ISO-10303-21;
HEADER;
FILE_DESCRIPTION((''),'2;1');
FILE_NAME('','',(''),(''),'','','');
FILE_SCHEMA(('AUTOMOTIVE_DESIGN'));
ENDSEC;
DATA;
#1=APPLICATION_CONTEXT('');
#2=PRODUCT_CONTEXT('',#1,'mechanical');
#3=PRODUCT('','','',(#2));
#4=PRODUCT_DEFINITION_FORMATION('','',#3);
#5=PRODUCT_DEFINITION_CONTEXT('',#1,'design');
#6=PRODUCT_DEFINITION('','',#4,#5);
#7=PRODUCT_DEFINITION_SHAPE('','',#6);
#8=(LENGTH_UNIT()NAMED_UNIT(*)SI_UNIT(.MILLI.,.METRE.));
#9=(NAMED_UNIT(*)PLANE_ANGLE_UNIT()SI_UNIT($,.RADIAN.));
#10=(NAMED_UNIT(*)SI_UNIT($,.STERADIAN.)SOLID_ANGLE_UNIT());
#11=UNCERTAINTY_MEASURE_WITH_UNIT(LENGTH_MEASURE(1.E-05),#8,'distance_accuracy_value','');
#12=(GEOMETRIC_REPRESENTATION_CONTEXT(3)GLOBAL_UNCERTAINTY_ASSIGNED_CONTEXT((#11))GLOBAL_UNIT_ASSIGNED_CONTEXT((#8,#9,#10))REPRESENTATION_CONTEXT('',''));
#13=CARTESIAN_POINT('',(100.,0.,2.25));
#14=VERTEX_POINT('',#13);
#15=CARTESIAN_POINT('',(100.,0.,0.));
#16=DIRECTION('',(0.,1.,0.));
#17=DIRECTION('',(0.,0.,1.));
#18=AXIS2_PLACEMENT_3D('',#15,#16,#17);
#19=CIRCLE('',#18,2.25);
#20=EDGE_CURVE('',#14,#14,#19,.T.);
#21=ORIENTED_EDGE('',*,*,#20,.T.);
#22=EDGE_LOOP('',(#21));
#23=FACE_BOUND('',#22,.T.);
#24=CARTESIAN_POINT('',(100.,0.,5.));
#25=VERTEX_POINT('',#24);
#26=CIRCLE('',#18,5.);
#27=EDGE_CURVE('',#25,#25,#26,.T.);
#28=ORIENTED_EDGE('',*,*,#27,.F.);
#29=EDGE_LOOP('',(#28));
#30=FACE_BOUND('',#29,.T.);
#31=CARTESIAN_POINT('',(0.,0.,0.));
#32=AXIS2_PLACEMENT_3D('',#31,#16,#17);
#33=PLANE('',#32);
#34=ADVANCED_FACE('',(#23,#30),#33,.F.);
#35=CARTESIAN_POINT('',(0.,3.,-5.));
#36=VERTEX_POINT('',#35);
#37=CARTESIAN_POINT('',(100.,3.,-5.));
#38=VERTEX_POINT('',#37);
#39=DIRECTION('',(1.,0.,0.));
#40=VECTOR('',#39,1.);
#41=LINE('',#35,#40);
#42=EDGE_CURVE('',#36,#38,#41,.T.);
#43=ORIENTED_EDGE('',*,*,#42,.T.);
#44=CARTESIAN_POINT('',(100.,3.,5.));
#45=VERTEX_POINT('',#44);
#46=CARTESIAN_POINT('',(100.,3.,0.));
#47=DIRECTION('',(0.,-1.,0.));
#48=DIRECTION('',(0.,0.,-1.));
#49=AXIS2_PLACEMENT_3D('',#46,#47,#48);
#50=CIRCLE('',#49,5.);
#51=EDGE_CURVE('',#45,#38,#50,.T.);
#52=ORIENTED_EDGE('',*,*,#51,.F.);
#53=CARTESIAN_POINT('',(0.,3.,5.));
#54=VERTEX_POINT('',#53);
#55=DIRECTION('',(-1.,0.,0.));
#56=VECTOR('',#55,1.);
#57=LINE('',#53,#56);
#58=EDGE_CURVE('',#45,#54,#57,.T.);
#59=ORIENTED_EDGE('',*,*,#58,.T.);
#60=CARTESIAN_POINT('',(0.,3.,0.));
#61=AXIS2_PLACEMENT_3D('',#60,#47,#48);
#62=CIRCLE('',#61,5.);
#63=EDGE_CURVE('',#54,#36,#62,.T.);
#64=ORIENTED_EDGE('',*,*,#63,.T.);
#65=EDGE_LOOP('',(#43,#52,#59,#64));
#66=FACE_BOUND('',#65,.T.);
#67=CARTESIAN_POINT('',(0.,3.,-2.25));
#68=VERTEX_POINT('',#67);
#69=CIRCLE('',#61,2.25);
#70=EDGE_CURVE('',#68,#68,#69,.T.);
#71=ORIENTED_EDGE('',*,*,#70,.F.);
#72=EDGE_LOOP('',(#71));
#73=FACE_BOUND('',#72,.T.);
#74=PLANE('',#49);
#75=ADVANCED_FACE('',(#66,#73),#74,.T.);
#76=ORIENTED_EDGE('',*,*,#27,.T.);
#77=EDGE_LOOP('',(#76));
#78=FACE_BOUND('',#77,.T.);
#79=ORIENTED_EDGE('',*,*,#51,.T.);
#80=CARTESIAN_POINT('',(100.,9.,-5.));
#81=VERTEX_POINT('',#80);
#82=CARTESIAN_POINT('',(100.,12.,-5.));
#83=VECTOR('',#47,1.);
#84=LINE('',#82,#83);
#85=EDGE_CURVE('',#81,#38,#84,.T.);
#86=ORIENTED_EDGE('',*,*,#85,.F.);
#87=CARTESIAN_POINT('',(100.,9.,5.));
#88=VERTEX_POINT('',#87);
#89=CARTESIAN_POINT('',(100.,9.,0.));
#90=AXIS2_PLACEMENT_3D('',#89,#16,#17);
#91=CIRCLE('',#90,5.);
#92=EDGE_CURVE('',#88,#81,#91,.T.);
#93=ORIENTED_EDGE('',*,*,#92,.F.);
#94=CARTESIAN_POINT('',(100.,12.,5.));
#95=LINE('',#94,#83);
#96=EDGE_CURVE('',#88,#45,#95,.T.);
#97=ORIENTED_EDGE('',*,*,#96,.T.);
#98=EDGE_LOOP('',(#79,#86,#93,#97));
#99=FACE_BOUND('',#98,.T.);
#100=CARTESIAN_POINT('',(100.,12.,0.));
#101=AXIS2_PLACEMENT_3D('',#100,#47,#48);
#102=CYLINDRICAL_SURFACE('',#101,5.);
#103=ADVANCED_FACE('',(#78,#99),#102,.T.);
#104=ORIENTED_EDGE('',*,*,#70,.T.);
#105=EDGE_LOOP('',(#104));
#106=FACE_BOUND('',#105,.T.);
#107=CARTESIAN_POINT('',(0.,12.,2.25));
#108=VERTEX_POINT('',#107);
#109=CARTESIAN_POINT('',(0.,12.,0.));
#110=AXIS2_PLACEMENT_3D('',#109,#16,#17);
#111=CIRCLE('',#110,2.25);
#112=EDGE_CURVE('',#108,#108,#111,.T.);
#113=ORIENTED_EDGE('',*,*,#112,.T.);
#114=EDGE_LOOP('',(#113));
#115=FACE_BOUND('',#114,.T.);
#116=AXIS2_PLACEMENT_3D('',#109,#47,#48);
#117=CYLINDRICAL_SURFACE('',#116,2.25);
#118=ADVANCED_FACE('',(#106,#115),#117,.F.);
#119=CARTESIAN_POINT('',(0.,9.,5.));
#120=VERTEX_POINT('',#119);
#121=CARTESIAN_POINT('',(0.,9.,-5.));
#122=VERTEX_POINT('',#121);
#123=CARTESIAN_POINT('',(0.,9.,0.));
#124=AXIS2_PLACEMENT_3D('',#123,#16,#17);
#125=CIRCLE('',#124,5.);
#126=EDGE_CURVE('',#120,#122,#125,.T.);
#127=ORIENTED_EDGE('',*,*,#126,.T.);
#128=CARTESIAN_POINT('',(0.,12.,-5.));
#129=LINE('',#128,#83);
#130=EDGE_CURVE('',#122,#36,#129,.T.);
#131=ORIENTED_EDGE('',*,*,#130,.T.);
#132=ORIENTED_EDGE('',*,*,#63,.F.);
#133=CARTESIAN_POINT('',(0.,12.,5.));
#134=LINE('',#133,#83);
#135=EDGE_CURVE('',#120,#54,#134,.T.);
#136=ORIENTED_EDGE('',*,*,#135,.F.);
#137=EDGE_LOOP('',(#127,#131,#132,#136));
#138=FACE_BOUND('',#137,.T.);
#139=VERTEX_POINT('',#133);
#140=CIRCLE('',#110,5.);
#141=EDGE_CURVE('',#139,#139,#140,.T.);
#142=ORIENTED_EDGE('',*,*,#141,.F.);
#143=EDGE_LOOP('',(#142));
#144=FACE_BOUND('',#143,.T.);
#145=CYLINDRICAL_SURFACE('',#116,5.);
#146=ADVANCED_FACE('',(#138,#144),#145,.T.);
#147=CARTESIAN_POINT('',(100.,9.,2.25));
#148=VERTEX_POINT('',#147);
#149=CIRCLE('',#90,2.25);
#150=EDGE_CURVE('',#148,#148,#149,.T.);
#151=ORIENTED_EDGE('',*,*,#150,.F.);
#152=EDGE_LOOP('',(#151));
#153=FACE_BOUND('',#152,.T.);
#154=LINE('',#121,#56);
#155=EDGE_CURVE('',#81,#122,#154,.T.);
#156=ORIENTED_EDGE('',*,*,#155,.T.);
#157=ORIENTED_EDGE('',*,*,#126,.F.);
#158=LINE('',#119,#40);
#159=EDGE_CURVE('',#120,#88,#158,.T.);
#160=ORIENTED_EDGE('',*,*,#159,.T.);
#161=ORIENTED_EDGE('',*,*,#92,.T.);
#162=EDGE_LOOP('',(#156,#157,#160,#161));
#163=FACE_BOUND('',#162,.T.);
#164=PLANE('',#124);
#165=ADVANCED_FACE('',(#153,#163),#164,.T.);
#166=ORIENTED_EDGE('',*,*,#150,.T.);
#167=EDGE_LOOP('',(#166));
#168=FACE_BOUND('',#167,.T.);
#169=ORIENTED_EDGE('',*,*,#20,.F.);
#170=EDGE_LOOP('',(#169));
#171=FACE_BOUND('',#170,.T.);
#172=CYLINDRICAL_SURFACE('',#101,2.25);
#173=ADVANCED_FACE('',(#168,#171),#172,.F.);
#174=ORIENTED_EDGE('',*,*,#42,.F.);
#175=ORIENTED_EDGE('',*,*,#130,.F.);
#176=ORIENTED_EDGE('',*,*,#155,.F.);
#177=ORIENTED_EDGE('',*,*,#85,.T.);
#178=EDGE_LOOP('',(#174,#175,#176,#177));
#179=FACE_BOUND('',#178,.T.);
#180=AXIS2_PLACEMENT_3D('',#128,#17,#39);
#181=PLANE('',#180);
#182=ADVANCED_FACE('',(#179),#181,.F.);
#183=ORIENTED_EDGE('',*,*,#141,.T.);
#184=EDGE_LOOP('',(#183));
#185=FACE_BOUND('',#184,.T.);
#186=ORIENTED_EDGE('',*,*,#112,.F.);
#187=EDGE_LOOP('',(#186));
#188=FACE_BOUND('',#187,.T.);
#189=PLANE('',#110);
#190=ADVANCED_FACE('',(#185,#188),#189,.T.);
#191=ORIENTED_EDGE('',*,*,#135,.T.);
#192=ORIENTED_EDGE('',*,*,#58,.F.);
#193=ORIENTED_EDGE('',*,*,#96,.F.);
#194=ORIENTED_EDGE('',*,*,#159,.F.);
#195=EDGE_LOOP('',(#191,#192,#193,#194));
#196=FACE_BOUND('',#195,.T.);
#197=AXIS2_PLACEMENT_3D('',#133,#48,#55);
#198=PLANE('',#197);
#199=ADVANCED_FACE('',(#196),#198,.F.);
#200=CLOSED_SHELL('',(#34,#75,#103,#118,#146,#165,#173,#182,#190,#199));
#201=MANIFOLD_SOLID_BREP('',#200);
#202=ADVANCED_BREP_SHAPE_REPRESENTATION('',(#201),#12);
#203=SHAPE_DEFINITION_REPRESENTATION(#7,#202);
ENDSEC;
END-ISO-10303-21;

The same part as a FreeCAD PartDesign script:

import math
import FreeCAD as App
import Part
import Sketcher
from FreeCAD import Vector
Q = App.Units.Quantity

doc = App.newDocument("Part")
body = doc.addObject("PartDesign::Body", "Body")

# Sketch on XZ plane
sketch1 = body.newObject("Sketcher::SketchObject", "Sketch")
sketch1.AttachmentSupport = (doc.getObject("XZ_Plane"), [""])
sketch1.MapMode = "FlatFace"
sketch1.addGeometry([
    Part.LineSegment(Vector(100, -5, 0), Vector(0, -5, 0)),  # 0
    Part.ArcOfCircle(Part.Circle(Vector(0, 0, 0), Vector(0, 0, 1), 5), math.radians(90), math.radians(270)),  # 1
    Part.LineSegment(Vector(0, 5, 0), Vector(100, 5, 0)),  # 2
    Part.ArcOfCircle(Part.Circle(Vector(100, 0, 0), Vector(0, 0, 1), 5), math.radians(-90), math.radians(90)),  # 3
    Part.Circle(Vector(100, 0, 0), Vector(0, 0, 1), 2.2),  # 4
    Part.Circle(Vector(0, 0, 0), Vector(0, 0, 1), 2.2),  # 5
], False)
sketch1.addConstraint([
    Sketcher.Constraint("Tangent", 0, 2, 1, 2),
    Sketcher.Constraint("Tangent", 1, 1, 2, 1),
    Sketcher.Constraint("Tangent", 2, 2, 3, 2),
    Sketcher.Constraint("Tangent", 3, 1, 0, 1),
    Sketcher.Constraint("Horizontal", 0),
    Sketcher.Constraint("Horizontal", 2),
    Sketcher.Constraint("Coincident", 1, 3, -1, 1),
    Sketcher.Constraint("Coincident", 5, 3, -1, 1),
    Sketcher.Constraint("Coincident", 4, 3, 3, 3),
    Sketcher.Constraint("Equal", 4, 5),
    Sketcher.Constraint("Radius", 1, Q("5 mm")),
    Sketcher.Constraint("Diameter", 4, Q("4.5 mm")),
    Sketcher.Constraint("DistanceX", 0, 2, 0, 1, Q("100 mm")),
])
pad1 = body.newObject("PartDesign::Pad", "Pad")
pad1.Profile = sketch1
pad1.Length = 12
pad1.Reversed = True

# Sketch on XZ plane
sketch2 = body.newObject("Sketcher::SketchObject", "Sketch001")
sketch2.AttachmentSupport = (doc.getObject("XZ_Plane"), [""])
sketch2.MapMode = "FlatFace"
sketch2.AttachmentOffset = App.Placement(Vector(0, 0, -9), App.Rotation())
sketch2.addGeometry([
    Part.Circle(Vector(0, 0, 0), Vector(0, 0, 1), 1005),
    Part.Circle(Vector(0, 0, 0), Vector(0, 0, 1), 5),
], False)
sketch2.addConstraint([
    Sketcher.Constraint("Coincident", 0, 3, -1, 1),
    Sketcher.Constraint("Coincident", 1, 3, -1, 1),
    Sketcher.Constraint("Diameter", 0, Q("2010 mm")),
    Sketcher.Constraint("Diameter", 1, Q("10 mm")),
])
pocket1 = body.newObject("PartDesign::Pocket", "Pocket")
pocket1.Profile = sketch2
pocket1.Length = 3

# Sketch on XZ plane
sketch3 = body.newObject("Sketcher::SketchObject", "Sketch002")
sketch3.AttachmentSupport = (doc.getObject("XZ_Plane"), [""])
sketch3.MapMode = "FlatFace"
sketch3.addGeometry([
    Part.Circle(Vector(100, 0, 0), Vector(0, 0, 1), 1005),
    Part.Circle(Vector(100, 0, 0), Vector(0, 0, 1), 5),
], False)
sketch3.addConstraint([
    Sketcher.Constraint("Coincident", 1, 3, 0, 3),
    Sketcher.Constraint("PointOnObject", 0, 3, -1),
    Sketcher.Constraint("Diameter", 0, Q("2010 mm")),
    Sketcher.Constraint("Diameter", 1, Q("10 mm")),
    Sketcher.Constraint("DistanceX", -1, 1, 0, 3, Q("100 mm")),
])
pocket2 = body.newObject("PartDesign::Pocket", "Pocket001")
pocket2.Profile = sketch3
pocket2.Length = 3

doc.recompute()
